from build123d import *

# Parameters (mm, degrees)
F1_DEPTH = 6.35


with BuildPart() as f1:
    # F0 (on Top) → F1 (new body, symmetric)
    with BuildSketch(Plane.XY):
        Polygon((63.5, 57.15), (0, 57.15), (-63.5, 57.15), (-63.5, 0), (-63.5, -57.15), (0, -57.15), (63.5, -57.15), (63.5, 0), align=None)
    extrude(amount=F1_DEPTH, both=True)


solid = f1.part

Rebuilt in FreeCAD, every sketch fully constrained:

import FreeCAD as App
import Part
import Sketcher
Q = App.Units.Quantity

doc = App.newDocument("Part")
params = doc.addObject("Spreadsheet::Sheet", "Params")
for row, (alias, value) in enumerate([
    ("sketch1_width", "5 in"),
    ("sketch1_height", "4.5 in"),
    ("pad1_length", "0.5 in"),
], start=1):
    params.set(f"A{row}", alias)
    params.set(f"B{row}", "=" + value)
    params.setAlias(f"B{row}", alias)

body = doc.addObject("PartDesign::Body", "Body")

# Sketch on XY plane
sketch1 = body.newObject("Sketcher::SketchObject", "Sketch")
sketch1.AttachmentSupport = (doc.getObject("XY_Plane"), [""])
sketch1.MapMode = "FlatFace"
sketch1.addGeometry(Part.LineSegment(App.Vector(64, 57, 0), App.Vector(-64, 57, 0)), False)
sketch1.addGeometry(Part.LineSegment(App.Vector(-64, 57, 0), App.Vector(-64, -57, 0)), False)
sketch1.addGeometry(Part.LineSegment(App.Vector(-64, -57, 0), App.Vector(64, -57, 0)), False)
sketch1.addGeometry(Part.LineSegment(App.Vector(64, -57, 0), App.Vector(64, 57, 0)), False)
sketch1.addConstraint(Sketcher.Constraint("Coincident", 0, 2, 1, 1))
sketch1.addConstraint(Sketcher.Constraint("Coincident", 1, 2, 2, 1))
sketch1.addConstraint(Sketcher.Constraint("Coincident", 2, 2, 3, 1))
sketch1.addConstraint(Sketcher.Constraint("Coincident", 3, 2, 0, 1))
sketch1.addConstraint(Sketcher.Constraint("Horizontal", 0))
sketch1.addConstraint(Sketcher.Constraint("Vertical", 1))
sketch1.addConstraint(Sketcher.Constraint("Horizontal", 2))
sketch1.addConstraint(Sketcher.Constraint("Vertical", 3))
sketch1.addConstraint(Sketcher.Constraint("Symmetric", 0, 2, 2, 2, -1, 1))
sketch1.addConstraint(Sketcher.Constraint("DistanceX", 0, 2, 0, 1, Q("5 in")))
sketch1.addConstraint(Sketcher.Constraint("DistanceY", 1, 2, 1, 1, Q("4.5 in")))
sketch1.setExpression("Constraints[9]", "Params.sketch1_width")
sketch1.setExpression("Constraints[10]", "Params.sketch1_height")
pad1 = body.newObject("PartDesign::Pad", "Pad")
pad1.Profile = sketch1
pad1.setExpression("Length", "Params.pad1_length")
pad1.Midplane = True

doc.recompute()
